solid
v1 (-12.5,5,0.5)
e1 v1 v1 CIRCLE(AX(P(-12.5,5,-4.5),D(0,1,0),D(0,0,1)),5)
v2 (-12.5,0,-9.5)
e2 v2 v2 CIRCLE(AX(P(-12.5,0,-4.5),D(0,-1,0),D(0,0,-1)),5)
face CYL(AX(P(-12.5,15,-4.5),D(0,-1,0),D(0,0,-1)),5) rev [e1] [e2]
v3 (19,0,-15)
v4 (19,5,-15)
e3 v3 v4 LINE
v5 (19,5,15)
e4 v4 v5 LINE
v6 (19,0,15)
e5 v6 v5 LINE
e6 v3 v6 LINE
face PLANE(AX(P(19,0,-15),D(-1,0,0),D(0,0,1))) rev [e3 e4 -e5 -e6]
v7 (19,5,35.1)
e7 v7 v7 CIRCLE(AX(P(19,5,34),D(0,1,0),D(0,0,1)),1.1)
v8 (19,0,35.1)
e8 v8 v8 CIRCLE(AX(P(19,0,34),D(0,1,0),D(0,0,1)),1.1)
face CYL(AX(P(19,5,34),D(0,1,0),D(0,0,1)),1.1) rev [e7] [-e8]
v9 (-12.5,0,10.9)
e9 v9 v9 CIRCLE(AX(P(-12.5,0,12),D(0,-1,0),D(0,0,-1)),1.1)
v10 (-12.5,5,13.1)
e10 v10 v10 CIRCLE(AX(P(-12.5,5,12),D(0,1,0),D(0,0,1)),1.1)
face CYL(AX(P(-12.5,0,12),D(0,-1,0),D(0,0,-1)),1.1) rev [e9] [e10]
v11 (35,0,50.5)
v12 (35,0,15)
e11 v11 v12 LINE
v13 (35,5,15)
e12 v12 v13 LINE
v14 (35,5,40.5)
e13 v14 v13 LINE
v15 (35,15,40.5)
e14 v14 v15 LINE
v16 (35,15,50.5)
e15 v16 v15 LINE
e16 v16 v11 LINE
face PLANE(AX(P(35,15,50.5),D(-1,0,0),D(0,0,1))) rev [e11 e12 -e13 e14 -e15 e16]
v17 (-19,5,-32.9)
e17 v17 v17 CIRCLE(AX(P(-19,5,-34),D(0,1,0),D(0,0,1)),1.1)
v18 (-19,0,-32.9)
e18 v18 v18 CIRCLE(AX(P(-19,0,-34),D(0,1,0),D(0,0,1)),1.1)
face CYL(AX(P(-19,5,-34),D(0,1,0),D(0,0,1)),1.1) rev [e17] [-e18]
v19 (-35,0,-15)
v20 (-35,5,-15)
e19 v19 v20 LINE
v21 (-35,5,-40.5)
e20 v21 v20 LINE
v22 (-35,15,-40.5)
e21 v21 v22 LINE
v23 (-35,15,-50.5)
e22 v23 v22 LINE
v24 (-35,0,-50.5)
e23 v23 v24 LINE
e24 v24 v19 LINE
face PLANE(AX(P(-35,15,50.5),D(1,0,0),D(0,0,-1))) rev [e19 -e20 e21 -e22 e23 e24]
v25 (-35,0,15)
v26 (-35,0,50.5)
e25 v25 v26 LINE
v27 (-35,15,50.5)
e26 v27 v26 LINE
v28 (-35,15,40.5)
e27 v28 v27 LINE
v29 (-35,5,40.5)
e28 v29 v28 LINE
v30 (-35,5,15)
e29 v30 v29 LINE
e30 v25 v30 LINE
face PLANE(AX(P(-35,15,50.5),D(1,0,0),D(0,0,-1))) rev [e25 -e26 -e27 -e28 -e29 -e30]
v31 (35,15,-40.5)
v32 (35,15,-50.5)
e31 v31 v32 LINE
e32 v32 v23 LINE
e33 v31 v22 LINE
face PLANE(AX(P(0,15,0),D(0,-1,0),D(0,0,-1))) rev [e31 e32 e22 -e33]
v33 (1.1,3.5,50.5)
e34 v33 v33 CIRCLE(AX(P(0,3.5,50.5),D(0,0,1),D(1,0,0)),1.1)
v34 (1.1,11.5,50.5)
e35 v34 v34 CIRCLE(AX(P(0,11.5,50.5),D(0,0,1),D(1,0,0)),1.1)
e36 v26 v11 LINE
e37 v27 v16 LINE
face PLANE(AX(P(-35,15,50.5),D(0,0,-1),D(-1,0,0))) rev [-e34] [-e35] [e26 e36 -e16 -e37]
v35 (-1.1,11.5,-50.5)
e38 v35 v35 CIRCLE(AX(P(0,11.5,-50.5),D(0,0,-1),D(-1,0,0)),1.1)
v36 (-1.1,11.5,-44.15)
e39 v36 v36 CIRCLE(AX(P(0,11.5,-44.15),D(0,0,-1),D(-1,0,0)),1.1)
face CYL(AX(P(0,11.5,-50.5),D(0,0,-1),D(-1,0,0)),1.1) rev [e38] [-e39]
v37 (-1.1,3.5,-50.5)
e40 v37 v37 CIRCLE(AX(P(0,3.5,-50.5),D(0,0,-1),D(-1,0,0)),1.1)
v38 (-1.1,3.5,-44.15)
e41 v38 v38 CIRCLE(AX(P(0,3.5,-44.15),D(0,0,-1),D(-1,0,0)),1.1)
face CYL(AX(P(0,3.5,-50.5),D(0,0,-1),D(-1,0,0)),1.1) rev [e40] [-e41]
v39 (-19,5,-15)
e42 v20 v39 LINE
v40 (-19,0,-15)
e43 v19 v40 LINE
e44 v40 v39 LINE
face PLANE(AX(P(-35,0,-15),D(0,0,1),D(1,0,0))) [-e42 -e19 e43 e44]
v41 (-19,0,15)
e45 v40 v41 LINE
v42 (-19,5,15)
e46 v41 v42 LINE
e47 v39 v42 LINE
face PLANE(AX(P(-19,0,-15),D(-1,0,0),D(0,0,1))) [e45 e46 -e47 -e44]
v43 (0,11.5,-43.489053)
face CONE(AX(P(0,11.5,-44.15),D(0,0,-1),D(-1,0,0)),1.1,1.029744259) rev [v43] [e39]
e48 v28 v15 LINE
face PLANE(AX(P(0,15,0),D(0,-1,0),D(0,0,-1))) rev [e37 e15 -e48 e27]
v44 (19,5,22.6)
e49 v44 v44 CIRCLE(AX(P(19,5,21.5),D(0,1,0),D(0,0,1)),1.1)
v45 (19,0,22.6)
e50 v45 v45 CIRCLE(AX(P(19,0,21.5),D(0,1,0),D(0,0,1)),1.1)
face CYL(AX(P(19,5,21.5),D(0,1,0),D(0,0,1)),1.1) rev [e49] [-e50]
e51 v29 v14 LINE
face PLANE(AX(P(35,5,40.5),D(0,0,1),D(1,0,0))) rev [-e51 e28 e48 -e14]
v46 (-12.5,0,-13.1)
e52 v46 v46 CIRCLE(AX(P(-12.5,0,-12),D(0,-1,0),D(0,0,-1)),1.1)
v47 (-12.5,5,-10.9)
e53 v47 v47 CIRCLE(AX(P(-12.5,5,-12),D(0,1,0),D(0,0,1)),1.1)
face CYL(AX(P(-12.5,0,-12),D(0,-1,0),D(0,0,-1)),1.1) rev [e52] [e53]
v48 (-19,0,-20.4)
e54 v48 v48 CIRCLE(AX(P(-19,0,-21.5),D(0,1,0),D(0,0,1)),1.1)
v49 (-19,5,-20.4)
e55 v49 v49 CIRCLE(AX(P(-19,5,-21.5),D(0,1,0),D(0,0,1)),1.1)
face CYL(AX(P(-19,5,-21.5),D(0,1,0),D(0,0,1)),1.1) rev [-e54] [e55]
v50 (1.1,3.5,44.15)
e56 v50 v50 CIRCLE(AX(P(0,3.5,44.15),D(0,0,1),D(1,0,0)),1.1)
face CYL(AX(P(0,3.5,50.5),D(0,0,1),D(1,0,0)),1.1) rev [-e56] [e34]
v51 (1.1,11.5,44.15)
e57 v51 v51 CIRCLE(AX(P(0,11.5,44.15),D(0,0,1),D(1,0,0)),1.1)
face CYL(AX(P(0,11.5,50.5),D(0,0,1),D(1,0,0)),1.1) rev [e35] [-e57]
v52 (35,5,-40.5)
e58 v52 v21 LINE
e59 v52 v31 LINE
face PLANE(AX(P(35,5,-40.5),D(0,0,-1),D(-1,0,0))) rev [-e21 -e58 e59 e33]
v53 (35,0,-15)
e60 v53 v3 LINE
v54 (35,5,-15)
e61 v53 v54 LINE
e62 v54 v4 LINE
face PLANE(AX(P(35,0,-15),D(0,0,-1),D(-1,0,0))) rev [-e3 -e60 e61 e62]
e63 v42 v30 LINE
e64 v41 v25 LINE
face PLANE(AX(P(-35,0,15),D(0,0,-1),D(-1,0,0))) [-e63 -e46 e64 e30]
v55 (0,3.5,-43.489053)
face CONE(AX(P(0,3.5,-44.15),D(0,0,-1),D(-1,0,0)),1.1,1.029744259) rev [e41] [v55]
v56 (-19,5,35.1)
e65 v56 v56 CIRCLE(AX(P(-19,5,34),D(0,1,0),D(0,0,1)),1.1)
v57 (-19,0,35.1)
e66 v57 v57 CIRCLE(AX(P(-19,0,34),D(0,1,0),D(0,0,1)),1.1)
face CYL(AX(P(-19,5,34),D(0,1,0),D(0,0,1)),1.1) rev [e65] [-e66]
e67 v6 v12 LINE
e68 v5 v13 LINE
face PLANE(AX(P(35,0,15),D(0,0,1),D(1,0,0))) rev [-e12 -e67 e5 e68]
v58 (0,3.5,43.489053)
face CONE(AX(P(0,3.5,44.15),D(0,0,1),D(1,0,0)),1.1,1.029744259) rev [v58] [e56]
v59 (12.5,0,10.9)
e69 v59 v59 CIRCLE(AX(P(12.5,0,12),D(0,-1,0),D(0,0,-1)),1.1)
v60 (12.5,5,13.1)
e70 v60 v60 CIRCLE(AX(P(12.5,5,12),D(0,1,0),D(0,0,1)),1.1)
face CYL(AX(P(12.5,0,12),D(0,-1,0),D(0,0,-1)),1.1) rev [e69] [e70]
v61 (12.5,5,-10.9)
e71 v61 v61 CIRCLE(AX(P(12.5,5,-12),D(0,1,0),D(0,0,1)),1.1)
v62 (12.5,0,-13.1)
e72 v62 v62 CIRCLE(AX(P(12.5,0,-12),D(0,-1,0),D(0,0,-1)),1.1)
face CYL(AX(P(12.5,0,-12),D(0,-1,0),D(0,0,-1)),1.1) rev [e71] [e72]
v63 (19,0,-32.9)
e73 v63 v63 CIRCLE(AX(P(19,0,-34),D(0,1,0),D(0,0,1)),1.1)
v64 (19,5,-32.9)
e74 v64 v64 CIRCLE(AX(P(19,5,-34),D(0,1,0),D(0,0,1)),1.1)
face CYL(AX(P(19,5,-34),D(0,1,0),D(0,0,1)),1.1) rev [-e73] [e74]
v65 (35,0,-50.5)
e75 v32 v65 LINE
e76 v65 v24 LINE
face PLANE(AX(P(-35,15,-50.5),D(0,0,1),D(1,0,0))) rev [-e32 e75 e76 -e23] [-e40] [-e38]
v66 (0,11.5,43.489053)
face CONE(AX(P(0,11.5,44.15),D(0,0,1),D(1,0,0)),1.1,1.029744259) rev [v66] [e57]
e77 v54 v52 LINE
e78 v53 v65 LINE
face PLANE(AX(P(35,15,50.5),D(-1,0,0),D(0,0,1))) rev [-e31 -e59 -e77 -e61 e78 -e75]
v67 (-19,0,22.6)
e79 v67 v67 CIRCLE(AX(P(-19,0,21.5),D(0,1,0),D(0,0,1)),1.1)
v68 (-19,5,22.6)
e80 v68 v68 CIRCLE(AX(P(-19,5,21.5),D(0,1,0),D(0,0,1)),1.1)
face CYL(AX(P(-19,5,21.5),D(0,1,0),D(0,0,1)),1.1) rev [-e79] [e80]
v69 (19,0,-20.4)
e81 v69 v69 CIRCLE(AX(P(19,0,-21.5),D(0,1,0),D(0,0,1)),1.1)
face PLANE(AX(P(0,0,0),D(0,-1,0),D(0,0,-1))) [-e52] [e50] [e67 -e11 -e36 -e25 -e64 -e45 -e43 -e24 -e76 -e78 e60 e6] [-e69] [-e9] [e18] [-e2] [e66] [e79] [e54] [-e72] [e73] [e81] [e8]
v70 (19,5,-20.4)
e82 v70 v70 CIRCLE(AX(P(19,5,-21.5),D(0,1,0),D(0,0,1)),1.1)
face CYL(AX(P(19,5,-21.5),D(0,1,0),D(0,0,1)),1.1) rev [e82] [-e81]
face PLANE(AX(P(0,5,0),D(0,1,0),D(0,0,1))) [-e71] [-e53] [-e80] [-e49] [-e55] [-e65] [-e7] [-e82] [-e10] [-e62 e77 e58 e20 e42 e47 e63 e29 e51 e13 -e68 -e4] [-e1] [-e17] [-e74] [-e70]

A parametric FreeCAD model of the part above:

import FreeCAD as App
import Part
import Sketcher
Q = App.Units.Quantity


def add_polygon(sketch, points):
    """Adds a closed chain of lines whose ends are joined by coincident constraints."""
    first, n = sketch.GeometryCount, len(points)
    for a, b in zip(points, points[1:] + points[:1]):
        sketch.addGeometry(Part.LineSegment(App.Vector(*a, 0), App.Vector(*b, 0)), False)
    for i in range(n):
        sketch.addConstraint(Sketcher.Constraint("Coincident", first + i, 2, first + (i + 1) % n, 1))

doc = App.newDocument("Part")
params = doc.addObject("Spreadsheet::Sheet", "Params")
for row, (alias, value) in enumerate([
    ("sketch1_width", "70 mm"),
    ("sketch1_height", "101 mm"),
    ("pad1_length", "15 mm"),
    ("sketch2_width", "70 mm"),
    ("sketch2_height", "81 mm"),
    ("pocket1_length", "10 mm"),
    ("sketch3_width", "1.1 mm"),
    ("sketch3_height", "6.35 mm"),
    ("groove_angle", "360 deg"),
    ("linearpattern_pitch", "8 mm"),
    ("sketch4_width", "1.1 mm"),
    ("sketch4_height", "6.35 mm"),
    ("groove2_angle", "360 deg"),
    ("sketch5_width", "16 mm"),
    ("sketch5_height", "30 mm"),
    ("sketch6_diameter", "2.2 mm"),
    ("hole_diameter", "2.2 mm"),
    ("sketch7_diameter", "10 mm"),
    ("sketch8_diameter", "2.2 mm"),
    ("hole2_diameter", "2.2 mm"),
], start=1):
    params.set(f"A{row}", alias)
    params.set(f"B{row}", "=" + value)
    params.setAlias(f"B{row}", alias)

body = doc.addObject("PartDesign::Body", "Body")

# Sketch on XZ plane
sketch1 = doc.addObject("Sketcher::SketchObject", "Sketch")
body.addObject(sketch1)
sketch1.AttachmentSupport = (doc.XZ_Plane, [""])
sketch1.MapMode = "FlatFace"
add_polygon(sketch1, [(-35, -50), (-35, 50), (35, 50), (35, -50)])  # lines 0-3
sketch1.addConstraint([
    Sketcher.Constraint("Vertical", 0),
    Sketcher.Constraint("Horizontal", 1),
    Sketcher.Constraint("Vertical", 2),
    Sketcher.Constraint("Horizontal", 3),
    Sketcher.Constraint("Symmetric", 0, 2, 2, 2, -1, 1),
    Sketcher.Constraint("DistanceX", 1, 1, 1, 2, Q("70 mm")),
    Sketcher.Constraint("DistanceY", 0, 1, 0, 2, Q("101 mm")),
])
sketch1.setExpression("Constraints[9]", "Params.sketch1_width")
sketch1.setExpression("Constraints[10]", "Params.sketch1_height")
pad1 = doc.addObject("PartDesign::Pad", "Pad")
body.addObject(pad1)
pad1.Profile = sketch1
pad1.setExpression("Length", "Params.pad1_length")
pad1.Reversed = True

# Sketch on XZ plane
sketch2 = doc.addObject("Sketcher::SketchObject", "Sketch001")
body.addObject(sketch2)
sketch2.AttachmentSupport = (doc.XZ_Plane, [""])
sketch2.MapMode = "FlatFace"
sketch2.AttachmentOffset = App.Placement(App.Vector(0, 0, -15), App.Rotation())
add_polygon(sketch2, [(-35, -40), (-35, 40), (35, 40), (35, -40)])  # lines 0-3
sketch2.addConstraint([
    Sketcher.Constraint("Vertical", 0),
    Sketcher.Constraint("Horizontal", 1),
    Sketcher.Constraint("Vertical", 2),
    Sketcher.Constraint("Horizontal", 3),
    Sketcher.Constraint("Symmetric", 0, 2, 2, 2, -1, 1),
    Sketcher.Constraint("DistanceX", 1, 1, 1, 2, Q("70 mm")),
    Sketcher.Constraint("DistanceY", 0, 1, 0, 2, Q("81 mm")),
])
sketch2.setExpression("Constraints[9]", "Params.sketch2_width")
sketch2.setExpression("Constraints[10]", "Params.sketch2_height")
pocket1 = doc.addObject("PartDesign::Pocket", "Pocket")
body.addObject(pocket1)
pocket1.Profile = sketch2
pocket1.setExpression("Length", "Params.pocket1_length")
pocket1.Reversed = True

# Sketch on YZ plane
sketch3 = doc.addObject("Sketcher::SketchObject", "Sketch002")
body.addObject(sketch3)
sketch3.AttachmentSupport = (doc.YZ_Plane, [""])
sketch3.MapMode = "FlatFace"
add_polygon(sketch3, [(3.5, -43.5), (3.5, -50.5), (4.6, -50.5), (4.6, -44.1)])  # lines 0-3
sketch3.addGeometry(Part.LineSegment(App.Vector(3.5, -50.5, 0), App.Vector(3.5, -43.5, 0)), True)  # axis
sketch3.addConstraint([
    Sketcher.Constraint("Vertical", 0),
    Sketcher.Constraint("Horizontal", 1),
    Sketcher.Constraint("Vertical", 2),
    Sketcher.Constraint("Vertical", 4),
    Sketcher.Constraint("Coincident", 4, 1, 0, 2),
    Sketcher.Constraint("Equal", 0, 4),
    Sketcher.Constraint("Angle", 3, Q("149 deg")),
    Sketcher.Constraint("DistanceX", 1, 1, 1, 2, Q("1.1 mm")),
    Sketcher.Constraint("DistanceY", 2, 1, 2, 2, Q("6.35 mm")),
    Sketcher.Constraint("DistanceX", -1, 1, 0, 2, Q("3.5 mm")),
    Sketcher.Constraint("DistanceY", 0, 2, -1, 1, Q("50.5 mm")),
])
sketch3.setExpression("Constraints[11]", "Params.sketch3_width")
sketch3.setExpression("Constraints[12]", "Params.sketch3_height")
groove = doc.addObject("PartDesign::Groove", "Groove")
body.addObject(groove)
groove.Profile = sketch3
groove.ReferenceAxis = (sketch3, ["Axis0"])
groove.setExpression("Angle", "Params.groove_angle")
doc.recompute()

linearpattern = doc.addObject("PartDesign::LinearPattern", "LinearPattern")
body.addObject(linearpattern)
linearpattern.Originals = [groove]
linearpattern.Direction = (doc.Y_Axis, [""])
linearpattern.Mode = "offset"
linearpattern.setExpression("Offset", "Params.linearpattern_pitch")
linearpattern.Occurrences = 2
body.Tip = linearpattern
doc.recompute()

mirrored = doc.addObject("PartDesign::Mirrored", "Mirrored")
body.addObject(mirrored)
mirrored.Originals = [groove]
mirrored.MirrorPlane = (doc.XY_Plane, [""])
body.Tip = mirrored

# Sketch on YZ plane
sketch4 = doc.addObject("Sketcher::SketchObject", "Sketch003")
body.addObject(sketch4)
sketch4.AttachmentSupport = (doc.YZ_Plane, [""])
sketch4.MapMode = "FlatFace"
add_polygon(sketch4, [(11.5, 50.5), (11.5, 43.5), (12.6, 44.1), (12.6, 50.5)])  # lines 0-3
sketch4.addGeometry(Part.LineSegment(App.Vector(11.5, 43.5, 0), App.Vector(11.5, 50.5, 0)), True)  # axis
sketch4.addConstraint([
    Sketcher.Constraint("Vertical", 0),
    Sketcher.Constraint("Vertical", 2),
    Sketcher.Constraint("Horizontal", 3),
    Sketcher.Constraint("Vertical", 4),
    Sketcher.Constraint("Coincident", 4, 1, 0, 2),
    Sketcher.Constraint("Horizontal", 2, 2, 4, 2),
    Sketcher.Constraint("Angle", 1, Q("31 deg")),
    Sketcher.Constraint("DistanceX", 3, 2, 3, 1, Q("1.1 mm")),
    Sketcher.Constraint("DistanceY", 2, 1, 2, 2, Q("6.35 mm")),
    Sketcher.Constraint("DistanceX", -1, 1, 0, 2, Q("11.5 mm")),
    Sketcher.Constraint("DistanceY", -1, 1, 2, 2, Q("50.5 mm")),
])
sketch4.setExpression("Constraints[11]", "Params.sketch4_width")
sketch4.setExpression("Constraints[12]", "Params.sketch4_height")
groove2 = doc.addObject("PartDesign::Groove", "Groove001")
body.addObject(groove2)
groove2.Profile = sketch4
groove2.ReferenceAxis = (sketch4, ["Axis0"])
groove2.setExpression("Angle", "Params.groove2_angle")

# Sketch on XZ plane
sketch5 = doc.addObject("Sketcher::SketchObject", "Sketch004")
body.addObject(sketch5)
sketch5.AttachmentSupport = (doc.XZ_Plane, [""])
sketch5.MapMode = "FlatFace"
sketch5.AttachmentOffset = App.Placement(App.Vector(0, 0, -5), App.Rotation())
add_polygon(sketch5, [(19, -15), (19, 15), (35, 15), (35, -15)])  # lines 0-3
sketch5.addConstraint([
    Sketcher.Constraint("Vertical", 0),
    Sketcher.Constraint("Horizontal", 1),
    Sketcher.Constraint("Vertical", 2),
    Sketcher.Constraint("Horizontal", 3),
    Sketcher.Constraint("DistanceX", 1, 1, 1, 2, Q("16 mm")),
    Sketcher.Constraint("DistanceY", 0, 1, 0, 2, Q("30 mm")),
    Sketcher.Constraint("DistanceX", -1, 1, 0, 2, Q("19 mm")),
    Sketcher.Constraint("DistanceY", -1, 1, 0, 2, Q("15 mm")),
])
sketch5.setExpression("Constraints[8]", "Params.sketch5_width")
sketch5.setExpression("Constraints[9]", "Params.sketch5_height")
pocket2 = doc.addObject("PartDesign::Pocket", "Pocket001")
body.addObject(pocket2)
pocket2.Profile = sketch5
pocket2.Type = "ThroughAll"
pocket2.Reversed = True
doc.recompute()

mirrored2 = doc.addObject("PartDesign::Mirrored", "Mirrored001")
body.addObject(mirrored2)
mirrored2.Originals = [pocket2]
mirrored2.MirrorPlane = (doc.YZ_Plane, [""])
body.Tip = mirrored2

# Sketch on XZ plane
sketch6 = doc.addObject("Sketcher::SketchObject", "Sketch005")
body.addObject(sketch6)
sketch6.AttachmentSupport = (doc.XZ_Plane, [""])
sketch6.MapMode = "FlatFace"
sketch6.addGeometry([
    Part.Circle(App.Vector(12.5, 12, 0), App.Vector(0, 0, 1), 1.1),
    Part.Circle(App.Vector(-12.5, 12, 0), App.Vector(0, 0, 1), 1.1),
    Part.Circle(App.Vector(12.5, -12, 0), App.Vector(0, 0, 1), 1.1),
    Part.Circle(App.Vector(-12.5, -12, 0), App.Vector(0, 0, 1), 1.1),
], False)
sketch6.addConstraint([
    Sketcher.Constraint("Equal", 0, 1),
    Sketcher.Constraint("Equal", 1, 2),
    Sketcher.Constraint("Equal", 2, 3),
    Sketcher.Constraint("Symmetric", 1, 3, 2, 3, -1, 1),
    Sketcher.Constraint("Symmetric", 0, 3, 3, 3, -1, 1),
    Sketcher.Constraint("Symmetric", 0, 3, 1, 3, -2),
    Sketcher.Constraint("Diameter", 0, Q("2.2 mm")),
    Sketcher.Constraint("DistanceY", -1, 1, 0, 3, Q("12 mm")),
    Sketcher.Constraint("DistanceX", 1, 3, 0, 3, Q("25 mm")),
])
sketch6.setExpression("Constraints[6]", "Params.sketch6_diameter")
doc.recompute()
hole = doc.addObject("PartDesign::Hole", "Hole")
body.addObject(hole)
hole.Profile = sketch6
hole.ThreadType = "None"
hole.setExpression("Diameter", "Params.hole_diameter")
hole.DepthType = "ThroughAll"

# Sketch on XZ plane
sketch7 = doc.addObject("Sketcher::SketchObject", "Sketch006")
body.addObject(sketch7)
sketch7.AttachmentSupport = (doc.XZ_Plane, [""])
sketch7.MapMode = "FlatFace"
sketch7.addGeometry(Part.Circle(App.Vector(-12, -4, 0), App.Vector(0, 0, 1), 5), False)
sketch7.addConstraint([
    Sketcher.Constraint("Diameter", 0, Q("10 mm")),
    Sketcher.Constraint("DistanceX", 0, 3, -1, 1, Q("12.5 mm")),
    Sketcher.Constraint("DistanceY", 0, 3, -1, 1, Q("4.5 mm")),
])
sketch7.setExpression("Constraints[0]", "Params.sketch7_diameter")
pocket3 = doc.addObject("PartDesign::Pocket", "Pocket002")
body.addObject(pocket3)
pocket3.Profile = sketch7
pocket3.Type = "ThroughAll"

# Sketch on XZ plane
sketch8 = doc.addObject("Sketcher::SketchObject", "Sketch007")
body.addObject(sketch8)
sketch8.AttachmentSupport = (doc.XZ_Plane, [""])
sketch8.MapMode = "FlatFace"
sketch8.AttachmentOffset = App.Placement(App.Vector(0, 0, -5), App.Rotation())
sketch8.addGeometry([
    Part.Circle(App.Vector(-19, -34, 0), App.Vector(0, 0, 1), 1.1),
    Part.Circle(App.Vector(-19, -21.5, 0), App.Vector(0, 0, 1), 1.1),
    Part.Circle(App.Vector(19, -21.5, 0), App.Vector(0, 0, 1), 1.1),
    Part.Circle(App.Vector(19, -34, 0), App.Vector(0, 0, 1), 1.1),
], False)
sketch8.addConstraint([
    Sketcher.Constraint("Equal", 0, 1),
    Sketcher.Constraint("Equal", 1, 2),
    Sketcher.Constraint("Equal", 2, 3),
    Sketcher.Constraint("Symmetric", 1, 3, 2, 3, -2),
    Sketcher.Constraint("Symmetric", 0, 3, 3, 3, -2),
    Sketcher.Constraint("Vertical", 0, 3, 1, 3),
    Sketcher.Constraint("Diameter", 0, Q("2.2 mm")),
    Sketcher.Constraint("DistanceX", 0, 3, -1, 1, Q("19 mm")),
    Sketcher.Constraint("DistanceY", 0, 3, -1, 1, Q("34 mm")),
    Sketcher.Constraint("DistanceY", 1, 3, -1, 1, Q("21.5 mm")),
])
sketch8.setExpression("Constraints[6]", "Params.sketch8_diameter")
doc.recompute()
hole2 = doc.addObject("PartDesign::Hole", "Hole001")
body.addObject(hole2)
hole2.Profile = sketch8
hole2.ThreadType = "None"
hole2.setExpression("Diameter", "Params.hole2_diameter")
hole2.DepthType = "ThroughAll"
hole2.Reversed = True
doc.recompute()

mirrored3 = doc.addObject("PartDesign::Mirrored", "Mirrored002")
body.addObject(mirrored3)
mirrored3.Originals = [hole2]
mirrored3.MirrorPlane = (doc.XY_Plane, [""])
body.Tip = mirrored3

doc.recompute()
